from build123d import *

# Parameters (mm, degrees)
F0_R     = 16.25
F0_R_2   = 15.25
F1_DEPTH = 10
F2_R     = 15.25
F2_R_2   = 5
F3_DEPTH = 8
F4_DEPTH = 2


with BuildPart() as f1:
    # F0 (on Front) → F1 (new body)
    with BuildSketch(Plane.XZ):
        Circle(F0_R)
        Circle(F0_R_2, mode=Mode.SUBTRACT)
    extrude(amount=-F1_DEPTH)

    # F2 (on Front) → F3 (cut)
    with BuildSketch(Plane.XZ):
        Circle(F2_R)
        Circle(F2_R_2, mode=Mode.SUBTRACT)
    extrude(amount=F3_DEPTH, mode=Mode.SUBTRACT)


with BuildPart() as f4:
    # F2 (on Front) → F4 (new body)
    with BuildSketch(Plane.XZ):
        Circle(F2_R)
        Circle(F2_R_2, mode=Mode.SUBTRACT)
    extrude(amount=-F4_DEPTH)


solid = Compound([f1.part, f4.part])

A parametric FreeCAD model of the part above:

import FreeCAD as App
import Part
import Sketcher
from FreeCAD import Vector

doc = App.newDocument("Part")
params = doc.addObject("Spreadsheet::Sheet", "Params")
for row, (alias, value) in enumerate([
    ("sketch1_diameter", "32.5 mm"),
    ("sketch1_diameter2", "30.5 mm"),
    ("pad1_length", "10 mm"),
    ("sketch2_diameter", "10 mm"),
    ("sketch2_diameter2", "30.5 mm"),
    ("pocket1_length", "8 mm"),
    ("sketch3_diameter", "10 mm"),
    ("sketch3_diameter2", "30.5 mm"),
    ("pad2_length", "2 mm"),
], start=1):
    params.set(f"A{row}", alias)
    params.set(f"B{row}", "=" + value)
    params.setAlias(f"B{row}", alias)

body = doc.addObject("PartDesign::Body", "Body")

sketch1 = body.newObject("Sketcher::SketchObject", "Sketch")
sketch1.AttachmentSupport = (doc.getObject("XZ_Plane"), [""])
sketch1.MapMode = "FlatFace"
sketch1.addGeometry(Part.Circle(Vector(0, 0, 0), Vector(0, 0, 1), 16), False)
sketch1.addGeometry(Part.Circle(Vector(0, 0, 0), Vector(0, 0, 1), 15), False)
sketch1.addConstraint(Sketcher.Constraint("Coincident", 0, 3, -1, 1))
sketch1.addConstraint(Sketcher.Constraint("Coincident", 1, 3, -1, 1))
sketch1.addConstraint(Sketcher.Constraint("Diameter", 0, 32.5))
sketch1.addConstraint(Sketcher.Constraint("Diameter", 1, 30.5))
sketch1.setExpression("Constraints[2]", "Params.sketch1_diameter")
sketch1.setExpression("Constraints[3]", "Params.sketch1_diameter2")
pad1 = body.newObject("PartDesign::Pad", "Pad")
pad1.Profile = sketch1
pad1.setExpression("Length", "Params.pad1_length")
pad1.Reversed = True

sketch2 = body.newObject("Sketcher::SketchObject", "Sketch001")
sketch2.AttachmentSupport = (doc.getObject("XZ_Plane"), [""])
sketch2.MapMode = "FlatFace"
sketch2.addGeometry(Part.Circle(Vector(0, 0, 0), Vector(0, 0, 1), 15), False)
sketch2.addGeometry(Part.Circle(Vector(0, 0, 0), Vector(0, 0, 1), 5), False)
sketch2.addConstraint(Sketcher.Constraint("Coincident", 0, 3, -1, 1))
sketch2.addConstraint(Sketcher.Constraint("Coincident", 1, 3, -1, 1))
sketch2.addConstraint(Sketcher.Constraint("Diameter", 1, 10.0))
sketch2.addConstraint(Sketcher.Constraint("Diameter", 0, 30.5))
sketch2.setExpression("Constraints[2]", "Params.sketch2_diameter")
sketch2.setExpression("Constraints[3]", "Params.sketch2_diameter2")
pocket1 = body.newObject("PartDesign::Pocket", "Pocket")
pocket1.Profile = sketch2
pocket1.setExpression("Length", "Params.pocket1_length")
pocket1.Reversed = True
body2 = doc.addObject("PartDesign::Body", "Body001")

sketch3 = body2.newObject("Sketcher::SketchObject", "Sketch002")
sketch3.AttachmentSupport = (doc.getObject("XZ_Plane001"), [""])
sketch3.MapMode = "FlatFace"
sketch3.addGeometry(Part.Circle(Vector(0, 0, 0), Vector(0, 0, 1), 15), False)
sketch3.addGeometry(Part.Circle(Vector(0, 0, 0), Vector(0, 0, 1), 5), False)
sketch3.addConstraint(Sketcher.Constraint("Coincident", 0, 3, -1, 1))
sketch3.addConstraint(Sketcher.Constraint("Coincident", 1, 3, -1, 1))
sketch3.addConstraint(Sketcher.Constraint("Diameter", 1, 10.0))
sketch3.addConstraint(Sketcher.Constraint("Diameter", 0, 30.5))
sketch3.setExpression("Constraints[2]", "Params.sketch3_diameter")
sketch3.setExpression("Constraints[3]", "Params.sketch3_diameter2")
pad2 = body2.newObject("PartDesign::Pad", "Pad001")
pad2.Profile = sketch3
pad2.setExpression("Length", "Params.pad2_length")
pad2.Reversed = True

doc.recompute()
